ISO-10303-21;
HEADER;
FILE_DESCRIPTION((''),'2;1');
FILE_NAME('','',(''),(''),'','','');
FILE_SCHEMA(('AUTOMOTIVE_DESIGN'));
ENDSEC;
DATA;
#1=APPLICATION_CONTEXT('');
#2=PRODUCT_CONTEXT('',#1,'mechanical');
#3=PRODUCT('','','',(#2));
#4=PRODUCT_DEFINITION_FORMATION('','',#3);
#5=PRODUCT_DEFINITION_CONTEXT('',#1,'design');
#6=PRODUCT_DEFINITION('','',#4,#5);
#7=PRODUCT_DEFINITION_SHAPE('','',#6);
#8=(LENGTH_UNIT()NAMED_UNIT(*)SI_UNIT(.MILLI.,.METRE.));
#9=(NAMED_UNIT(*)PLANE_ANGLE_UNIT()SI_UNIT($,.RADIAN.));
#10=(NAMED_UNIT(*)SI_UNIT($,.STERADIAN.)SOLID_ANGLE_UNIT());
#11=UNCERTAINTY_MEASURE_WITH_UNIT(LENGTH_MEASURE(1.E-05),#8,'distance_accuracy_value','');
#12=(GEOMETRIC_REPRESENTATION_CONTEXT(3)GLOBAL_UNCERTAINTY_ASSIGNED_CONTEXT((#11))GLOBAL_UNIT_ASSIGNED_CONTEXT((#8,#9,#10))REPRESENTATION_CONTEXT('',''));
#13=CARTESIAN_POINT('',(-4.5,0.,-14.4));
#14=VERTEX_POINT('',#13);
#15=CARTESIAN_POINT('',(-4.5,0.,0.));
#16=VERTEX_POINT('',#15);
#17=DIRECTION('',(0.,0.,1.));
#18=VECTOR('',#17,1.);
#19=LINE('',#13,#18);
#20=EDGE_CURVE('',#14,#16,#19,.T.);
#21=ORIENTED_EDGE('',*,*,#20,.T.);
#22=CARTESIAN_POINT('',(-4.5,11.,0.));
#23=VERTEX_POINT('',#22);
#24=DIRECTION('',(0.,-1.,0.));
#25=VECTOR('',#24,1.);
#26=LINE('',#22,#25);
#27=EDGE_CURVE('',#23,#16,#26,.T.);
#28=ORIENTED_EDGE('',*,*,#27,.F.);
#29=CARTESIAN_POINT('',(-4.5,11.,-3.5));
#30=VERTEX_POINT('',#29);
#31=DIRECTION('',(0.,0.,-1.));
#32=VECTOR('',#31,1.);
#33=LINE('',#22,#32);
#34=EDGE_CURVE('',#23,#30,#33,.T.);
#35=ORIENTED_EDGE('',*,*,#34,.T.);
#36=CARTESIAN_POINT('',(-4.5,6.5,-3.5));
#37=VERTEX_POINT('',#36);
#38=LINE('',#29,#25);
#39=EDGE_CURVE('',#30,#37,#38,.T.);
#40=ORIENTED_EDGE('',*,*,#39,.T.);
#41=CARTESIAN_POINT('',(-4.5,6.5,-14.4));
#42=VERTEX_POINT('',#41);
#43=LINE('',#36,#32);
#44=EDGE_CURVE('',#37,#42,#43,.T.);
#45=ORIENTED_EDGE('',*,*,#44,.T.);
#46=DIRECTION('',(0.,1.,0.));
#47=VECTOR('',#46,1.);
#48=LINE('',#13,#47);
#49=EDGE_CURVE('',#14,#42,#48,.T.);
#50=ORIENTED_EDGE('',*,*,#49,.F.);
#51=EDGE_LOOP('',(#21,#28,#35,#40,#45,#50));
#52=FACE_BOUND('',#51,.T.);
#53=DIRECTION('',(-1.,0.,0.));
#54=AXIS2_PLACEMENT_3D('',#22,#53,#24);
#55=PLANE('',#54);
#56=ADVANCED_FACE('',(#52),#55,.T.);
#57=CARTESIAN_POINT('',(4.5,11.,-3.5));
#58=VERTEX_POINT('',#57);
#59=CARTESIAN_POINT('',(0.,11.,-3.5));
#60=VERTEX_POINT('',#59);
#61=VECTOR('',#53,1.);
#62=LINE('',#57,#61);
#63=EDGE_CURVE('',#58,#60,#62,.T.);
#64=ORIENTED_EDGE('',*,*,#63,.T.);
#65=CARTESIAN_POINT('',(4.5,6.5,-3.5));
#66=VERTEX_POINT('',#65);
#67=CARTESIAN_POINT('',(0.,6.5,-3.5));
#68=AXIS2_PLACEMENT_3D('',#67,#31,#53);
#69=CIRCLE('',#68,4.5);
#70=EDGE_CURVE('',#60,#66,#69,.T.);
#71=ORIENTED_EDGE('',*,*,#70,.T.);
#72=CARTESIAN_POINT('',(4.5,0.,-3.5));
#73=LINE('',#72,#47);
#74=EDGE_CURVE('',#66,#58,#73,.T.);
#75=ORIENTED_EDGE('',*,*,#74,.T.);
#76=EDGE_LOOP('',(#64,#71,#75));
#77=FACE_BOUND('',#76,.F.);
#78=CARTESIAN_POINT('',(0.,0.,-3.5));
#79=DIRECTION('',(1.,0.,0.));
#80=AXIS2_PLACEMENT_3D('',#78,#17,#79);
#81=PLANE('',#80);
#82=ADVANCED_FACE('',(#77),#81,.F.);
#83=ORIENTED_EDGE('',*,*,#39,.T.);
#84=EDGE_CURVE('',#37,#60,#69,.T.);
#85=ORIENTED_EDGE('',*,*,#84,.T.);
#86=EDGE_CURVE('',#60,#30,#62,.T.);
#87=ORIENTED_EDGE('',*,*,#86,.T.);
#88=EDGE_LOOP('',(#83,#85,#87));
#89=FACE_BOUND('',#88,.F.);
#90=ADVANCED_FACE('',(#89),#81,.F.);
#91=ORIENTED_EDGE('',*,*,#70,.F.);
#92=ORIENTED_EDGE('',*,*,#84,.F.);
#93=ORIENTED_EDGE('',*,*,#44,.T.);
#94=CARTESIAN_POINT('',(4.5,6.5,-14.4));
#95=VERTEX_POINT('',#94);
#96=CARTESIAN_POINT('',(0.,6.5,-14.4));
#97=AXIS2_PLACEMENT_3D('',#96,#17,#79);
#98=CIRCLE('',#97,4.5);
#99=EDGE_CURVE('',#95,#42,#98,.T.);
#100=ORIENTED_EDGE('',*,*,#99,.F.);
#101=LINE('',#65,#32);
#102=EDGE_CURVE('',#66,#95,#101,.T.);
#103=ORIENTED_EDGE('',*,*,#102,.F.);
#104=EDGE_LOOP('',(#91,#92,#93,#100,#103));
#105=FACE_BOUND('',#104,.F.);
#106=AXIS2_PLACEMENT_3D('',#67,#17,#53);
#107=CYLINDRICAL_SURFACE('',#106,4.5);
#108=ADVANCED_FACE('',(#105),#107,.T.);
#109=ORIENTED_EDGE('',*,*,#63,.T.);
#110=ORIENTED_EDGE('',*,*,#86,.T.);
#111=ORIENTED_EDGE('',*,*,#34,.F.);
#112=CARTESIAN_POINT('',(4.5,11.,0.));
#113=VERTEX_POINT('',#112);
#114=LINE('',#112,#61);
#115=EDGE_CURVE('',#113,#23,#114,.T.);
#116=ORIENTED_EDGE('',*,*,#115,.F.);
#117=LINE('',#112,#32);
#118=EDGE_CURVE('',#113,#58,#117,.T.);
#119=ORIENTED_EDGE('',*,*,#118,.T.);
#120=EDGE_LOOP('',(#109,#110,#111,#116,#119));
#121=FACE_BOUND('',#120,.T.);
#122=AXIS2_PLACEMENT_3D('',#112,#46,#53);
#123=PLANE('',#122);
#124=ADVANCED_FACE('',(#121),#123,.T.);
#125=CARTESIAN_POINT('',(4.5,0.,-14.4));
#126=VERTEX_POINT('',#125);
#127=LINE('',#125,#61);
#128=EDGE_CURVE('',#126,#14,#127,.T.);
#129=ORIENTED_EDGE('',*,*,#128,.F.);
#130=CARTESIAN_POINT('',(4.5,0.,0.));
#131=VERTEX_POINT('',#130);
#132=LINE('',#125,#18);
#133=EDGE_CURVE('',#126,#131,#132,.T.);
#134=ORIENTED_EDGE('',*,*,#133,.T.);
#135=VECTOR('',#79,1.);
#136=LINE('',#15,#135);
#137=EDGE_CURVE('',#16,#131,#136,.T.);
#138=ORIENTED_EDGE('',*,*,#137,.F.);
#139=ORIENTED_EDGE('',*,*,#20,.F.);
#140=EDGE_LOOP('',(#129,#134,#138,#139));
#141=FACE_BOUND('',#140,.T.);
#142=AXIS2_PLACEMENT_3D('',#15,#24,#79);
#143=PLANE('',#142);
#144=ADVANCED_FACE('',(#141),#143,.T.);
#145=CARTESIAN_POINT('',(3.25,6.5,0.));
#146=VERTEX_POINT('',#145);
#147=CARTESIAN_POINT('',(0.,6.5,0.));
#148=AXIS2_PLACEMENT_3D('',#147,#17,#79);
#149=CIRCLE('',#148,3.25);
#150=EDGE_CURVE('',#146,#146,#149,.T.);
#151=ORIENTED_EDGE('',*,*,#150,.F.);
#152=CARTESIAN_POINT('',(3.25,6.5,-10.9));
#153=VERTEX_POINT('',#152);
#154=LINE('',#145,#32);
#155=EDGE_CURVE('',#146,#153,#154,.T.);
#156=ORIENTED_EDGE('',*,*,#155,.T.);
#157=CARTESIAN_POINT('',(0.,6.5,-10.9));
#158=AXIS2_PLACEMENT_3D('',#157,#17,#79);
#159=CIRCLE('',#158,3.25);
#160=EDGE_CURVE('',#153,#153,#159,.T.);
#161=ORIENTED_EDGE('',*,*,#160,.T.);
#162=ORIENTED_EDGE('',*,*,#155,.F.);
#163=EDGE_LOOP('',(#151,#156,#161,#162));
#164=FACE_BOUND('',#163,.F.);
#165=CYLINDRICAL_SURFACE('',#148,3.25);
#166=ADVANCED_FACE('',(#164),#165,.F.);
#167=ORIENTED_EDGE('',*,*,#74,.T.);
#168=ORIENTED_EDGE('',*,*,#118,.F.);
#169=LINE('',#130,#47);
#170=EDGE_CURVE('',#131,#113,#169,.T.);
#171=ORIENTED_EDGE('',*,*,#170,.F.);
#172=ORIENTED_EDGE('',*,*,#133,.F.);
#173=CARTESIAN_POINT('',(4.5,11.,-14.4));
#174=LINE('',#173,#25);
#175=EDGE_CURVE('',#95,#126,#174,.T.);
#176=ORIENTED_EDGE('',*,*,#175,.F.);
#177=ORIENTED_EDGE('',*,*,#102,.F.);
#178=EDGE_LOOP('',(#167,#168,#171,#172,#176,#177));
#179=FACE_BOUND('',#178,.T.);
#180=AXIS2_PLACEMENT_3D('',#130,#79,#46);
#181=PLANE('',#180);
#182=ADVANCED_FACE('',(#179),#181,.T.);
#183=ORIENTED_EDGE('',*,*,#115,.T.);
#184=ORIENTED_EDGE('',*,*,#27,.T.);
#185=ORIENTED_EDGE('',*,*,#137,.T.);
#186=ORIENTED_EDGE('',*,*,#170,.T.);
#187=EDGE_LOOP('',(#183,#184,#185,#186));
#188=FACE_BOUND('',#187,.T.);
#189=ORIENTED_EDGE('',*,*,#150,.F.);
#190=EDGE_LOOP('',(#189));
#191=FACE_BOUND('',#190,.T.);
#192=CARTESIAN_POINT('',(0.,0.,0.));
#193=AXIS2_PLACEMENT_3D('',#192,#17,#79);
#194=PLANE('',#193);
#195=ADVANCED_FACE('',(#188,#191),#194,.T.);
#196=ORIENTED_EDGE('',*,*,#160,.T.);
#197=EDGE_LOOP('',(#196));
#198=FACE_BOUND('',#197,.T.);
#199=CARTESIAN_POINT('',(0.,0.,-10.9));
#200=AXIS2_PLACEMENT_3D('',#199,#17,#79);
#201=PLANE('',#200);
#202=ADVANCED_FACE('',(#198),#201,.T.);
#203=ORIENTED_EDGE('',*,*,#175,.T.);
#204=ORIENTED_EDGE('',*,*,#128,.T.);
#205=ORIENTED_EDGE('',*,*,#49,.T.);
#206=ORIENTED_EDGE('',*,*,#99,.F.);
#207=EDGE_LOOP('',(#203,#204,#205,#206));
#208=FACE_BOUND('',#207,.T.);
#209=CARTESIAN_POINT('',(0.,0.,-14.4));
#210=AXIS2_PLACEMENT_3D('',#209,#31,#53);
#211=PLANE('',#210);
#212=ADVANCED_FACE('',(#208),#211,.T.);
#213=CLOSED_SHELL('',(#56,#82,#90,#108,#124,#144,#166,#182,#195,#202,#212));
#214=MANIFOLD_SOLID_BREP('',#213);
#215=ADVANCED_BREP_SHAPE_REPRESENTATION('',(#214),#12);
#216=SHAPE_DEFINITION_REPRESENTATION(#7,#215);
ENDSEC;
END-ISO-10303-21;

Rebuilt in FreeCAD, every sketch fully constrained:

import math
import FreeCAD as App
import Part
import Sketcher


def add_polygon(sketch, points):
    """Adds a closed chain of lines whose ends are joined by coincident constraints."""
    first, n = sketch.GeometryCount, len(points)
    for a, b in zip(points, points[1:] + points[:1]):
        sketch.addGeometry(Part.LineSegment(App.Vector(*a, 0), App.Vector(*b, 0)), False)
    for i in range(n):
        sketch.addConstraint(Sketcher.Constraint("Coincident", first + i, 2, first + (i + 1) % n, 1))

doc = App.newDocument("Part")
params = doc.addObject("Spreadsheet::Sheet", "Params")
for row, (alias, value) in enumerate([
    ("sketch1_width", "9 mm"),
    ("sketch1_height", "11 mm"),
    ("pad1_length", "3.5 mm"),
    ("sketch2_radius", "4.5 mm"),
    ("sketch2_height", "6.5 mm"),
    ("pad2_length", "10.9 mm"),
    ("sketch3_diameter", "6.5 mm"),
    ("pocket1_length", "10.9 mm"),
], start=1):
    params.set(f"A{row}", alias)
    params.set(f"B{row}", "=" + value)
    params.setAlias(f"B{row}", alias)

body = doc.addObject("PartDesign::Body", "Body")

# Sketch on XY plane
sketch1 = body.newObject("Sketcher::SketchObject", "Sketch")
sketch1.AttachmentSupport = (doc.getObject("XY_Plane"), [""])
sketch1.MapMode = "FlatFace"
add_polygon(sketch1, [(-4, 11), (-4, 0), (4, 0), (4, 11)])  # lines 0-3
sketch1.addConstraint(Sketcher.Constraint("Vertical", 0))
sketch1.addConstraint(Sketcher.Constraint("Horizontal", 1))
sketch1.addConstraint(Sketcher.Constraint("Vertical", 2))
sketch1.addConstraint(Sketcher.Constraint("Horizontal", 3))
sketch1.addConstraint(Sketcher.Constraint("Symmetric", 0, 2, 1, 2, -1, 1))
sketch1.addConstraint(Sketcher.Constraint("DistanceX", 1, 1, 1, 2, 9.0))
sketch1.addConstraint(Sketcher.Constraint("DistanceY", 0, 2, 0, 1, 11.0))
sketch1.setExpression("Constraints[9]", "Params.sketch1_width")
sketch1.setExpression("Constraints[10]", "Params.sketch1_height")
pad1 = body.newObject("PartDesign::Pad", "Pad")
pad1.Profile = sketch1
pad1.setExpression("Length", "Params.pad1_length")
pad1.Reversed = True

# Sketch on XY plane
sketch2 = body.newObject("Sketcher::SketchObject", "Sketch001")
sketch2.AttachmentSupport = (doc.getObject("XY_Plane"), [""])
sketch2.MapMode = "FlatFace"
sketch2.AttachmentOffset = App.Placement(App.Vector(0, 0, -3.5), App.Rotation())
sketch2.addGeometry(Part.LineSegment(App.Vector(4.5, 6.5, 0), App.Vector(4.5, 0, 0)), False)
sketch2.addGeometry(Part.LineSegment(App.Vector(4.5, 0, 0), App.Vector(-4.5, 0, 0)), False)
sketch2.addGeometry(Part.LineSegment(App.Vector(-4.5, 0, 0), App.Vector(-4.5, 6.5, 0)), False)
sketch2.addGeometry(Part.ArcOfCircle(Part.Circle(App.Vector(0, 6.5, 0), App.Vector(0, 0, 1), 4.5), math.radians(0), math.radians(180)), False)
sketch2.addConstraint(Sketcher.Constraint("Coincident", 0, 2, 1, 1))
sketch2.addConstraint(Sketcher.Constraint("Coincident", 1, 2, 2, 1))
sketch2.addConstraint(Sketcher.Constraint("Tangent", 2, 2, 3, 2))
sketch2.addConstraint(Sketcher.Constraint("Tangent", 3, 1, 0, 1))
sketch2.addConstraint(Sketcher.Constraint("Vertical", 0))
sketch2.addConstraint(Sketcher.Constraint("Horizontal", 1))
sketch2.addConstraint(Sketcher.Constraint("Vertical", 2))
sketch2.addConstraint(Sketcher.Constraint("Symmetric", 0, 2, 1, 2, -1, 1))
sketch2.addConstraint(Sketcher.Constraint("Radius", 3, 4.5))
sketch2.addConstraint(Sketcher.Constraint("DistanceY", 0, 2, 0, 1, 6.5))
sketch2.setExpression("Constraints[8]", "Params.sketch2_radius")
sketch2.setExpression("Constraints[9]", "Params.sketch2_height")
pad2 = body.newObject("PartDesign::Pad", "Pad001")
pad2.Profile = sketch2
pad2.setExpression("Length", "Params.pad2_length")
pad2.Reversed = True

# Sketch on XY plane
sketch3 = body.newObject("Sketcher::SketchObject", "Sketch002")
sketch3.AttachmentSupport = (doc.getObject("XY_Plane"), [""])
sketch3.MapMode = "FlatFace"
sketch3.addGeometry(Part.Circle(App.Vector(0, 6.5, 0), App.Vector(0, 0, 1), 3.2), False)
sketch3.addConstraint(Sketcher.Constraint("PointOnObject", 0, 3, -2))
sketch3.addConstraint(Sketcher.Constraint("Diameter", 0, 6.5))
sketch3.addConstraint(Sketcher.Constraint("DistanceY", -1, 1, 0, 3, 6.5))
sketch3.setExpression("Constraints[1]", "Params.sketch3_diameter")
pocket1 = body.newObject("PartDesign::Pocket", "Pocket")
pocket1.Profile = sketch3
pocket1.setExpression("Length", "Params.pocket1_length")

doc.recompute()
